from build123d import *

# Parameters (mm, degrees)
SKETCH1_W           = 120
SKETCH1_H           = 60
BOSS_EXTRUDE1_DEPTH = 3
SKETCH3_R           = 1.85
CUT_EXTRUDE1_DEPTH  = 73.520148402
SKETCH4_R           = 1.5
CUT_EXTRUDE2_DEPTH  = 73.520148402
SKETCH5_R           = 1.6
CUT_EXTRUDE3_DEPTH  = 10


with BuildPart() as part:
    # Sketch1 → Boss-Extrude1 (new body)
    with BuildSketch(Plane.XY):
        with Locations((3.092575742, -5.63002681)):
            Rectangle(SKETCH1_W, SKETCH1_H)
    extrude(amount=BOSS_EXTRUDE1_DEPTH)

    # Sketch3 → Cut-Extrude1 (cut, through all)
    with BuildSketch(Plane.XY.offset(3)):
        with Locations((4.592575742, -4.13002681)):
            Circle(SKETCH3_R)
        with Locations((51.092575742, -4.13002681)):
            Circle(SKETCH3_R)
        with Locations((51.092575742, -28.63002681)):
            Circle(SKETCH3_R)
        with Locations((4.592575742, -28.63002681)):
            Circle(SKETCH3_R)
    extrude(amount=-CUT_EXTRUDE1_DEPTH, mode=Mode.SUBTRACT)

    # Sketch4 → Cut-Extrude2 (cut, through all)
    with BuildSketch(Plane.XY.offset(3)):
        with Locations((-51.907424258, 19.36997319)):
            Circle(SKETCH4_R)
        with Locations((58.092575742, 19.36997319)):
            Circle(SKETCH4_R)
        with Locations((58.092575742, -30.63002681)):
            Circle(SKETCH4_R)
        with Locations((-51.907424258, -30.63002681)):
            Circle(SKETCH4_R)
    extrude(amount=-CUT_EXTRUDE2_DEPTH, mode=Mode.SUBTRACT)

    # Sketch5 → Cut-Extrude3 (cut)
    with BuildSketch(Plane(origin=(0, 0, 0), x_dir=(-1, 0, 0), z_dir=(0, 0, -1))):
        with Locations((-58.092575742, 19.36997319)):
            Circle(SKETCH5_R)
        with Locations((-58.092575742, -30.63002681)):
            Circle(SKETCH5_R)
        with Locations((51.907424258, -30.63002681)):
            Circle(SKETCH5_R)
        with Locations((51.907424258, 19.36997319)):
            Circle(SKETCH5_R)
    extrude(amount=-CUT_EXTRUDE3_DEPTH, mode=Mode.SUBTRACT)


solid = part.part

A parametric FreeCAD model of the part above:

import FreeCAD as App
import Part
import Sketcher
from FreeCAD import Vector
Q = App.Units.Quantity

doc = App.newDocument("Part")
body = doc.addObject("PartDesign::Body", "Body")

sketch1 = body.newObject("Sketcher::SketchObject", "Sketch")
sketch1.AttachmentSupport = (doc.getObject("XY_Plane"), [""])
sketch1.MapMode = "FlatFace"
sketch1.addGeometry([
    Part.LineSegment(Vector(-56.907424, 24.369973, 0), Vector(-56.907424, -35.630027, 0)),
    Part.LineSegment(Vector(-56.907424, -35.630027, 0), Vector(63.092576, -35.630027, 0)),
    Part.LineSegment(Vector(63.092576, -35.630027, 0), Vector(63.092576, 24.369973, 0)),
    Part.LineSegment(Vector(63.092576, 24.369973, 0), Vector(-56.907424, 24.369973, 0)),
], False)
sketch1.addConstraint([
    Sketcher.Constraint("Coincident", 0, 2, 1, 1),
    Sketcher.Constraint("Coincident", 1, 2, 2, 1),
    Sketcher.Constraint("Coincident", 2, 2, 3, 1),
    Sketcher.Constraint("Coincident", 3, 2, 0, 1),
    Sketcher.Constraint("Vertical", 0),
    Sketcher.Constraint("Horizontal", 1),
    Sketcher.Constraint("Vertical", 2),
    Sketcher.Constraint("Horizontal", 3),
    Sketcher.Constraint("DistanceX", 1, 1, 1, 2, Q("120 mm")),
    Sketcher.Constraint("DistanceY", 0, 2, 0, 1, Q("60 mm")),
    Sketcher.Constraint("DistanceX", 0, 2, -1, 1, Q("56.907424 mm")),
    Sketcher.Constraint("DistanceY", 0, 2, -1, 1, Q("35.630027 mm")),
])
pad1 = body.newObject("PartDesign::Pad", "Pad")
pad1.Profile = sketch1
pad1.Length = 3

sketch2 = body.newObject("Sketcher::SketchObject", "Sketch001")
sketch2.AttachmentSupport = (doc.getObject("XY_Plane"), [""])
sketch2.MapMode = "FlatFace"
sketch2.AttachmentOffset = App.Placement(Vector(0, 0, 3), App.Rotation())
sketch2.addGeometry([
    Part.Circle(Vector(4.592576, -4.130027, 0), Vector(0, 0, 1), 1.85),
    Part.Circle(Vector(51.092576, -4.130027, 0), Vector(0, 0, 1), 1.85),
    Part.Circle(Vector(51.092576, -28.630027, 0), Vector(0, 0, 1), 1.85),
    Part.Circle(Vector(4.592576, -28.630027, 0), Vector(0, 0, 1), 1.85),
], False)
sketch2.addConstraint([
    Sketcher.Constraint("Equal", 0, 1),
    Sketcher.Constraint("Equal", 1, 2),
    Sketcher.Constraint("Equal", 2, 3),
    Sketcher.Constraint("Horizontal", 0, 3, 1, 3),
    Sketcher.Constraint("Horizontal", 2, 3, 3, 3),
    Sketcher.Constraint("Vertical", 1, 3, 2, 3),
    Sketcher.Constraint("Vertical", 0, 3, 3, 3),
    Sketcher.Constraint("Diameter", 0, Q("3.7 mm")),
    Sketcher.Constraint("DistanceX", 0, 3, 1, 3, Q("46.5 mm")),
    Sketcher.Constraint("DistanceY", 2, 3, 1, 3, Q("24.5 mm")),
    Sketcher.Constraint("DistanceX", -1, 1, 0, 3, Q("4.592576 mm")),
    Sketcher.Constraint("DistanceY", 0, 3, -1, 1, Q("4.130027 mm")),
])
pocket1 = body.newObject("PartDesign::Pocket", "Pocket")
pocket1.Profile = sketch2
pocket1.Type = "ThroughAll"

sketch3 = body.newObject("Sketcher::SketchObject", "Sketch002")
sketch3.AttachmentSupport = (doc.getObject("XY_Plane"), [""])
sketch3.MapMode = "FlatFace"
sketch3.AttachmentOffset = App.Placement(Vector(0, 0, 3), App.Rotation())
sketch3.addGeometry([
    Part.Circle(Vector(-51.907424, 19.369973, 0), Vector(0, 0, 1), 1.5),
    Part.Circle(Vector(58.092576, 19.369973, 0), Vector(0, 0, 1), 1.5),
    Part.Circle(Vector(58.092576, -30.630027, 0), Vector(0, 0, 1), 1.5),
    Part.Circle(Vector(-51.907424, -30.630027, 0), Vector(0, 0, 1), 1.5),
], False)
sketch3.addConstraint([
    Sketcher.Constraint("Equal", 0, 1),
    Sketcher.Constraint("Equal", 1, 2),
    Sketcher.Constraint("Equal", 2, 3),
    Sketcher.Constraint("Horizontal", 0, 3, 1, 3),
    Sketcher.Constraint("Horizontal", 2, 3, 3, 3),
    Sketcher.Constraint("Vertical", 1, 3, 2, 3),
    Sketcher.Constraint("Vertical", 0, 3, 3, 3),
    Sketcher.Constraint("Diameter", 0, Q("3 mm")),
    Sketcher.Constraint("DistanceX", 0, 3, 1, 3, Q("110 mm")),
    Sketcher.Constraint("DistanceY", 2, 3, 1, 3, Q("50 mm")),
    Sketcher.Constraint("DistanceX", 0, 3, -1, 1, Q("51.907424 mm")),
    Sketcher.Constraint("DistanceY", -1, 1, 0, 3, Q("19.369973 mm")),
])
pocket2 = body.newObject("PartDesign::Pocket", "Pocket001")
pocket2.Profile = sketch3
pocket2.Type = "ThroughAll"

sketch4 = body.newObject("Sketcher::SketchObject", "Sketch003")
sketch4.AttachmentSupport = (doc.getObject("XY_Plane"), [""])
sketch4.MapMode = "FlatFace"
sketch4.addGeometry([
    Part.Circle(Vector(58.092576, 19.369973, 0), Vector(0, 0, 1), 1.6),
    Part.Circle(Vector(58.092576, -30.630027, 0), Vector(0, 0, 1), 1.6),
    Part.Circle(Vector(-51.907424, -30.630027, 0), Vector(0, 0, 1), 1.6),
    Part.Circle(Vector(-51.907424, 19.369973, 0), Vector(0, 0, 1), 1.6),
], False)
sketch4.addConstraint([
    Sketcher.Constraint("Equal", 0, 1),
    Sketcher.Constraint("Equal", 1, 2),
    Sketcher.Constraint("Equal", 2, 3),
    Sketcher.Constraint("Horizontal", 1, 3, 2, 3),
    Sketcher.Constraint("Horizontal", 0, 3, 3, 3),
    Sketcher.Constraint("Vertical", 0, 3, 1, 3),
    Sketcher.Constraint("Vertical", 2, 3, 3, 3),
    Sketcher.Constraint("Diameter", 0, Q("3.2 mm")),
    Sketcher.Constraint("DistanceY", 1, 3, 0, 3, Q("50 mm")),
    Sketcher.Constraint("DistanceX", 2, 3, 1, 3, Q("110 mm")),
    Sketcher.Constraint("DistanceX", -1, 1, 0, 3, Q("58.092576 mm")),
    Sketcher.Constraint("DistanceY", -1, 1, 0, 3, Q("19.369973 mm")),
])
pocket3 = body.newObject("PartDesign::Pocket", "Pocket002")
pocket3.Profile = sketch4
pocket3.Length = 10
pocket3.Reversed = True

doc.recompute()
